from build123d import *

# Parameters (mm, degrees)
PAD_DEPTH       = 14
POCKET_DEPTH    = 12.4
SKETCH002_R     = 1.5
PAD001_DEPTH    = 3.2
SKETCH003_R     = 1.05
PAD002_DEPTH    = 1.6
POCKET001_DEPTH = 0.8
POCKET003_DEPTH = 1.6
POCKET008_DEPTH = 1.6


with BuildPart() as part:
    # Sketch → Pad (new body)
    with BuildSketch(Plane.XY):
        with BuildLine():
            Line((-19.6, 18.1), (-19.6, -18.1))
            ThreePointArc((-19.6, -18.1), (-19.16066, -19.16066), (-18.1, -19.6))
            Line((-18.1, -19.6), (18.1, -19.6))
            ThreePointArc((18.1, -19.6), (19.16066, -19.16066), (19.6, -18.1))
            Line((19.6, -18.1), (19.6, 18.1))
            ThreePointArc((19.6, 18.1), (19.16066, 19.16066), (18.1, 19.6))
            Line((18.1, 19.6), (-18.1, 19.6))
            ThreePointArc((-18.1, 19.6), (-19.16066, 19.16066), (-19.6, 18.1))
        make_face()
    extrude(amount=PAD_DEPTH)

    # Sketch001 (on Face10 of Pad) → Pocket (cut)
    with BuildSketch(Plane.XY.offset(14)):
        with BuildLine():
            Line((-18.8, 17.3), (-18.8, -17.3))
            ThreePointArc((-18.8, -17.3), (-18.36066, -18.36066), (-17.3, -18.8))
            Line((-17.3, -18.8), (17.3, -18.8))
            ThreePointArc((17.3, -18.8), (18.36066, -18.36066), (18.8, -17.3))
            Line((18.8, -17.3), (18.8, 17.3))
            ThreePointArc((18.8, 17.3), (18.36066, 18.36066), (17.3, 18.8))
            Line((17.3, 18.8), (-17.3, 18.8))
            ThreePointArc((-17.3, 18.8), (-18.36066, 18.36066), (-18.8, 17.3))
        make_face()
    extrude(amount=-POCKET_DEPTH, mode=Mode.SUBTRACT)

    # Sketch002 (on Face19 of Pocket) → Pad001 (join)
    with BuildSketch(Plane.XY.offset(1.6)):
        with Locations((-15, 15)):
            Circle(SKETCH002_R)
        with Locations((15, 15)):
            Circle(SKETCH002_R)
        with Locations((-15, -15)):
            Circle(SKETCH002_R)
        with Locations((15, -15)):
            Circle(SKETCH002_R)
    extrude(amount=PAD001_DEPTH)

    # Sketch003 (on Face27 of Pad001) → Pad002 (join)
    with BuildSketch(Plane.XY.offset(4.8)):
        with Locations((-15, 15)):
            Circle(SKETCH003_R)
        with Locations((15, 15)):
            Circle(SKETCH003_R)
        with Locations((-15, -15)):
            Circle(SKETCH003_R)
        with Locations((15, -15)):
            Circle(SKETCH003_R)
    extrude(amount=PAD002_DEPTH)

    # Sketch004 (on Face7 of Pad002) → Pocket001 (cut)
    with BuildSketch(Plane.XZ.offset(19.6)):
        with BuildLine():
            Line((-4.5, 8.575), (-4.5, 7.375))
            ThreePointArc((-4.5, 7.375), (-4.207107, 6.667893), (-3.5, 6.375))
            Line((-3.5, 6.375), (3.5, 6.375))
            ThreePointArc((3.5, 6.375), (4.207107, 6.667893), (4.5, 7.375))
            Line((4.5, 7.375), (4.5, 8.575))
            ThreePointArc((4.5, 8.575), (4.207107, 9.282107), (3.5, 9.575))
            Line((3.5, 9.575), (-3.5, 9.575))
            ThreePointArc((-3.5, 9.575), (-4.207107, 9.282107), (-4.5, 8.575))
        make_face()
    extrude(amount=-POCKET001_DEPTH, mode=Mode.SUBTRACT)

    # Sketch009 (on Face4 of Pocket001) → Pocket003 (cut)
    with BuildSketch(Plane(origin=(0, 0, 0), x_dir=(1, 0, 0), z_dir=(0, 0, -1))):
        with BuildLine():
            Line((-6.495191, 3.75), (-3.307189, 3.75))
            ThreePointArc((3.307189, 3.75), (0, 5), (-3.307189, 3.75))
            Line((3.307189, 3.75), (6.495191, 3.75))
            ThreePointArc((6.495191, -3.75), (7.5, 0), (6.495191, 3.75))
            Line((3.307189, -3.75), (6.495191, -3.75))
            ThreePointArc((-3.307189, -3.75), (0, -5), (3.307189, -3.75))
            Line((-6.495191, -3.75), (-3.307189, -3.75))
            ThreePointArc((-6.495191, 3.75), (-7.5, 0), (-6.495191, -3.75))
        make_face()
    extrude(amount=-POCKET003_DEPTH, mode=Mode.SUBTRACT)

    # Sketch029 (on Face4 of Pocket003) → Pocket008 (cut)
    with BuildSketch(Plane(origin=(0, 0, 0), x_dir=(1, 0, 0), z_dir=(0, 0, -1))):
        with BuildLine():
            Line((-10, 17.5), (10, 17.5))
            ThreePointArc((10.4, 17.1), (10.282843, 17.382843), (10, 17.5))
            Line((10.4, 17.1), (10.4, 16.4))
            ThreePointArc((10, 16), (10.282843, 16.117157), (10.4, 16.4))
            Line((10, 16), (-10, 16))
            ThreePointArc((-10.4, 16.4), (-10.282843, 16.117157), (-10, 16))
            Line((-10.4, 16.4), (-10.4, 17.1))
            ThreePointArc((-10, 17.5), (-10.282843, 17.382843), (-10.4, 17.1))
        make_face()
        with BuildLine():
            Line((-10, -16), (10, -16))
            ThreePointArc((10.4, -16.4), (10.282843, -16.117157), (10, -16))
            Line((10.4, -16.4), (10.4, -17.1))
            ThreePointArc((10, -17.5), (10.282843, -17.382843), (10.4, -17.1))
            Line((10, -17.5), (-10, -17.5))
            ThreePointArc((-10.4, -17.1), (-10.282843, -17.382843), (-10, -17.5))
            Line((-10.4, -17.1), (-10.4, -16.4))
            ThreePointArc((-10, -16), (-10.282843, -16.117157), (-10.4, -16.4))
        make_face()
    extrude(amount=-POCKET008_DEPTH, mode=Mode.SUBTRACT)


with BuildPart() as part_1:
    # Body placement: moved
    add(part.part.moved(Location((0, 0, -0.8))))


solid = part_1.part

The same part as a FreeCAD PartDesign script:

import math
import FreeCAD as App
import Part
import Sketcher
from FreeCAD import Vector
Q = App.Units.Quantity

doc = App.newDocument("Part")
body = doc.addObject("PartDesign::Body", "Body")

sketch1 = body.newObject("Sketcher::SketchObject", "Sketch")
sketch1.AttachmentSupport = (doc.getObject("XY_Plane"), [""])
sketch1.MapMode = "FlatFace"
sketch1.addGeometry([
    Part.LineSegment(Vector(-19.6, 18.1, 0), Vector(-19.6, -18.1, 0)),
    Part.ArcOfCircle(Part.Circle(Vector(-18.1, -18.1, 0), Vector(0, 0, 1), 1.5), math.radians(-180), math.radians(-90)),
    Part.LineSegment(Vector(-18.1, -19.6, 0), Vector(18.1, -19.6, 0)),
    Part.ArcOfCircle(Part.Circle(Vector(18.1, -18.1, 0), Vector(0, 0, 1), 1.5), math.radians(-90), math.radians(0)),
    Part.LineSegment(Vector(19.6, -18.1, 0), Vector(19.6, 18.1, 0)),
    Part.ArcOfCircle(Part.Circle(Vector(18.1, 18.1, 0), Vector(0, 0, 1), 1.5), math.radians(0), math.radians(90)),
    Part.LineSegment(Vector(18.1, 19.6, 0), Vector(-18.1, 19.6, 0)),
    Part.ArcOfCircle(Part.Circle(Vector(-18.1, 18.1, 0), Vector(0, 0, 1), 1.5), math.radians(90), math.radians(180)),
], False)
sketch1.addConstraint([
    Sketcher.Constraint("Tangent", 0, 2, 1, 1),
    Sketcher.Constraint("Tangent", 1, 2, 2, 1),
    Sketcher.Constraint("Tangent", 2, 2, 3, 1),
    Sketcher.Constraint("Tangent", 3, 2, 4, 1),
    Sketcher.Constraint("Tangent", 4, 2, 5, 1),
    Sketcher.Constraint("Tangent", 5, 2, 6, 1),
    Sketcher.Constraint("Tangent", 6, 2, 7, 1),
    Sketcher.Constraint("Tangent", 7, 2, 0, 1),
    Sketcher.Constraint("Vertical", 0),
    Sketcher.Constraint("Horizontal", 2),
    Sketcher.Constraint("Vertical", 4),
    Sketcher.Constraint("Horizontal", 6),
    Sketcher.Constraint("Equal", 1, 3),
    Sketcher.Constraint("Equal", 3, 5),
    Sketcher.Constraint("Equal", 5, 7),
    Sketcher.Constraint("Symmetric", 1, 3, 5, 3, -1, 1),
    Sketcher.Constraint("Equal", 6, 0),
    Sketcher.Constraint("Radius", 1, Q("1.500001 mm")),
    Sketcher.Constraint("DistanceX", 2, 1, 2, 2, Q("36.2 mm")),
])
pad1 = body.newObject("PartDesign::Pad", "Pad")
pad1.Profile = sketch1
pad1.Length = 14

sketch2 = body.newObject("Sketcher::SketchObject", "Sketch001")
sketch2.AttachmentSupport = (doc.getObject("XY_Plane"), [""])
sketch2.MapMode = "FlatFace"
sketch2.AttachmentOffset = App.Placement(Vector(0, 0, 14), App.Rotation())
sketch2.addGeometry([
    Part.LineSegment(Vector(-18.8, 17.3, 0), Vector(-18.8, -17.3, 0)),
    Part.ArcOfCircle(Part.Circle(Vector(-17.3, -17.3, 0), Vector(0, 0, 1), 1.5), math.radians(-180), math.radians(-90)),
    Part.LineSegment(Vector(-17.3, -18.8, 0), Vector(17.3, -18.8, 0)),
    Part.ArcOfCircle(Part.Circle(Vector(17.3, -17.3, 0), Vector(0, 0, 1), 1.5), math.radians(-90), math.radians(0)),
    Part.LineSegment(Vector(18.8, -17.3, 0), Vector(18.8, 17.3, 0)),
    Part.ArcOfCircle(Part.Circle(Vector(17.3, 17.3, 0), Vector(0, 0, 1), 1.5), math.radians(0), math.radians(90)),
    Part.LineSegment(Vector(17.3, 18.8, 0), Vector(-17.3, 18.8, 0)),
    Part.ArcOfCircle(Part.Circle(Vector(-17.3, 17.3, 0), Vector(0, 0, 1), 1.5), math.radians(90), math.radians(180)),
], False)
sketch2.addConstraint([
    Sketcher.Constraint("Tangent", 0, 2, 1, 1),
    Sketcher.Constraint("Tangent", 1, 2, 2, 1),
    Sketcher.Constraint("Tangent", 2, 2, 3, 1),
    Sketcher.Constraint("Tangent", 3, 2, 4, 1),
    Sketcher.Constraint("Tangent", 4, 2, 5, 1),
    Sketcher.Constraint("Tangent", 5, 2, 6, 1),
    Sketcher.Constraint("Tangent", 6, 2, 7, 1),
    Sketcher.Constraint("Tangent", 7, 2, 0, 1),
    Sketcher.Constraint("Vertical", 0),
    Sketcher.Constraint("Horizontal", 2),
    Sketcher.Constraint("Vertical", 4),
    Sketcher.Constraint("Horizontal", 6),
    Sketcher.Constraint("Equal", 1, 3),
    Sketcher.Constraint("Equal", 3, 5),
    Sketcher.Constraint("Equal", 5, 7),
    Sketcher.Constraint("Symmetric", 1, 3, 5, 3, -1, 1),
    Sketcher.Constraint("Equal", 6, 0),
    Sketcher.Constraint("Radius", 1, Q("1.500001 mm")),
    Sketcher.Constraint("DistanceX", 2, 1, 2, 2, Q("34.6 mm")),
])
pocket1 = body.newObject("PartDesign::Pocket", "Pocket")
pocket1.Profile = sketch2
pocket1.Length = 12.4

sketch3 = body.newObject("Sketcher::SketchObject", "Sketch002")
sketch3.AttachmentSupport = (doc.getObject("XY_Plane"), [""])
sketch3.MapMode = "FlatFace"
sketch3.AttachmentOffset = App.Placement(Vector(0, 0, 1.6), App.Rotation())
sketch3.addGeometry([
    Part.Circle(Vector(-15, 15, 0), Vector(0, 0, 1), 1.5),
    Part.Circle(Vector(15, 15, 0), Vector(0, 0, 1), 1.5),
    Part.Circle(Vector(-15, -15, 0), Vector(0, 0, 1), 1.5),
    Part.Circle(Vector(15, -15, 0), Vector(0, 0, 1), 1.5),
], False)
sketch3.addConstraint([
    Sketcher.Constraint("Equal", 0, 1),
    Sketcher.Constraint("Equal", 1, 2),
    Sketcher.Constraint("Equal", 2, 3),
    Sketcher.Constraint("Symmetric", 1, 3, 2, 3, -1, 1),
    Sketcher.Constraint("Symmetric", 0, 3, 3, 3, -1, 1),
    Sketcher.Constraint("Symmetric", 0, 3, 1, 3, -2),
    Sketcher.Constraint("Diameter", 0, Q("3 mm")),
    Sketcher.Constraint("DistanceX", 0, 3, -1, 1, Q("15 mm")),
    Sketcher.Constraint("DistanceY", -1, 1, 0, 3, Q("15 mm")),
])
pad2 = body.newObject("PartDesign::Pad", "Pad001")
pad2.Profile = sketch3
pad2.Length = 3.2

sketch4 = body.newObject("Sketcher::SketchObject", "Sketch003")
sketch4.AttachmentSupport = (doc.getObject("XY_Plane"), [""])
sketch4.MapMode = "FlatFace"
sketch4.AttachmentOffset = App.Placement(Vector(0, 0, 4.8), App.Rotation())
sketch4.addGeometry([
    Part.Circle(Vector(-15, 15, 0), Vector(0, 0, 1), 1.1),
    Part.Circle(Vector(15, 15, 0), Vector(0, 0, 1), 1.1),
    Part.Circle(Vector(-15, -15, 0), Vector(0, 0, 1), 1.1),
    Part.Circle(Vector(15, -15, 0), Vector(0, 0, 1), 1.1),
], False)
sketch4.addConstraint([
    Sketcher.Constraint("Equal", 0, 1),
    Sketcher.Constraint("Equal", 1, 2),
    Sketcher.Constraint("Equal", 2, 3),
    Sketcher.Constraint("Symmetric", 1, 3, 2, 3, -1, 1),
    Sketcher.Constraint("Symmetric", 0, 3, 3, 3, -1, 1),
    Sketcher.Constraint("Symmetric", 0, 3, 1, 3, -2),
    Sketcher.Constraint("Diameter", 0, Q("2.1 mm")),
    Sketcher.Constraint("DistanceX", 0, 3, -1, 1, Q("15 mm")),
    Sketcher.Constraint("DistanceY", -1, 1, 0, 3, Q("15 mm")),
])
pad3 = body.newObject("PartDesign::Pad", "Pad002")
pad3.Profile = sketch4
pad3.Length = 1.6

sketch5 = body.newObject("Sketcher::SketchObject", "Sketch004")
sketch5.AttachmentSupport = (doc.getObject("XZ_Plane"), [""])
sketch5.MapMode = "FlatFace"
sketch5.AttachmentOffset = App.Placement(Vector(0, 0, 19.6), App.Rotation())
sketch5.addGeometry([
    Part.LineSegment(Vector(-4.5, 8.6, 0), Vector(-4.5, 7.4, 0)),
    Part.ArcOfCircle(Part.Circle(Vector(-3.5, 7.4, 0), Vector(0, 0, 1), 1), math.radians(180), math.radians(270)),
    Part.LineSegment(Vector(-3.5, 6.4, 0), Vector(3.5, 6.4, 0)),
    Part.ArcOfCircle(Part.Circle(Vector(3.5, 7.4, 0), Vector(0, 0, 1), 1), math.radians(-90), math.radians(0)),
    Part.LineSegment(Vector(4.5, 7.4, 0), Vector(4.5, 8.6, 0)),
    Part.ArcOfCircle(Part.Circle(Vector(3.5, 8.6, 0), Vector(0, 0, 1), 1), math.radians(0), math.radians(90)),
    Part.LineSegment(Vector(3.5, 9.6, 0), Vector(-3.5, 9.6, 0)),
    Part.ArcOfCircle(Part.Circle(Vector(-3.5, 8.6, 0), Vector(0, 0, 1), 1), math.radians(90), math.radians(180)),
], False)
sketch5.addConstraint([
    Sketcher.Constraint("Tangent", 0, 2, 1, 1),
    Sketcher.Constraint("Tangent", 1, 2, 2, 1),
    Sketcher.Constraint("Tangent", 2, 2, 3, 1),
    Sketcher.Constraint("Tangent", 3, 2, 4, 1),
    Sketcher.Constraint("Tangent", 4, 2, 5, 1),
    Sketcher.Constraint("Tangent", 5, 2, 6, 1),
    Sketcher.Constraint("Tangent", 6, 2, 7, 1),
    Sketcher.Constraint("Tangent", 7, 2, 0, 1),
    Sketcher.Constraint("Vertical", 0),
    Sketcher.Constraint("Horizontal", 2),
    Sketcher.Constraint("Vertical", 4),
    Sketcher.Constraint("Horizontal", 6),
    Sketcher.Constraint("Equal", 1, 3),
    Sketcher.Constraint("Equal", 3, 5),
    Sketcher.Constraint("Equal", 5, 7),
    Sketcher.Constraint("Radius", 1, Q("0.999999 mm")),
    Sketcher.Constraint("DistanceX", 2, 1, 2, 2, Q("7 mm")),
    Sketcher.Constraint("DistanceY", 0, 2, 0, 1, Q("1.2 mm")),
    Sketcher.Constraint("DistanceX", 1, 3, -1, 1, Q("3.500001 mm")),
    Sketcher.Constraint("DistanceY", -1, 1, 1, 3, Q("7.374999 mm")),
])
pocket2 = body.newObject("PartDesign::Pocket", "Pocket001")
pocket2.Profile = sketch5
pocket2.Length = 0.8

sketch6 = body.newObject("Sketcher::SketchObject", "Sketch005")
sketch6.AttachmentSupport = (doc.getObject("XY_Plane"), [""])
sketch6.MapMode = "FlatFace"
sketch6.addGeometry([
    Part.LineSegment(Vector(-3.3, -3.8, 0), Vector(-6.5, -3.8, 0)),
    Part.ArcOfCircle(Part.Circle(Vector(0, 0, 0), Vector(0, 0, 1), 7.5), math.radians(150), math.radians(210)),
    Part.LineSegment(Vector(-6.5, 3.8, 0), Vector(-3.3, 3.8, 0)),
    Part.ArcOfCircle(Part.Circle(Vector(0, 0, 0), Vector(0, 0, 1), 5), math.radians(49), math.radians(131)),
    Part.LineSegment(Vector(3.3, 3.8, 0), Vector(6.5, 3.8, 0)),
    Part.ArcOfCircle(Part.Circle(Vector(0, 0, 0), Vector(0, 0, 1), 7.5), math.radians(-30), math.radians(30)),
    Part.LineSegment(Vector(6.5, -3.8, 0), Vector(3.3, -3.8, 0)),
    Part.ArcOfCircle(Part.Circle(Vector(0, 0, 0), Vector(0, 0, 1), 5), math.radians(-131), math.radians(-49)),
], False)
sketch6.addConstraint([
    Sketcher.Constraint("Coincident", 0, 2, 1, 2),
    Sketcher.Constraint("Coincident", 1, 1, 2, 1),
    Sketcher.Constraint("Coincident", 2, 2, 3, 2),
    Sketcher.Constraint("Coincident", 3, 1, 4, 1),
    Sketcher.Constraint("Coincident", 4, 2, 5, 2),
    Sketcher.Constraint("Coincident", 5, 1, 6, 1),
    Sketcher.Constraint("Coincident", 6, 2, 7, 2),
    Sketcher.Constraint("Coincident", 7, 1, 0, 1),
    Sketcher.Constraint("Horizontal", 0),
    Sketcher.Constraint("Horizontal", 2),
    Sketcher.Constraint("Horizontal", 4),
    Sketcher.Constraint("Horizontal", 6),
    Sketcher.Constraint("Coincident", 1, 3, -1, 1),
    Sketcher.Constraint("Coincident", 3, 3, -1, 1),
    Sketcher.Constraint("Coincident", 5, 3, -1, 1),
    Sketcher.Constraint("Coincident", 7, 3, -1, 1),
    Sketcher.Constraint("Equal", 1, 5),
    Sketcher.Constraint("Equal", 3, 7),
    Sketcher.Constraint("Horizontal", 2, 2, 3, 1),
    Sketcher.Constraint("Horizontal", 0, 2, 5, 1),
    Sketcher.Constraint("Vertical", 0, 2, 1, 1),
    Sketcher.Constraint("Radius", 3, Q("5 mm")),
    Sketcher.Constraint("DistanceY", 0, 2, 1, 1, Q("7.5 mm")),
    Sketcher.Constraint("DistanceX", 0, 2, 0, 1, Q("3.188002 mm")),
])
pocket3 = body.newObject("PartDesign::Pocket", "Pocket002")
pocket3.Profile = sketch6
pocket3.Length = 1.6
pocket3.Reversed = True

sketch7 = body.newObject("Sketcher::SketchObject", "Sketch006")
sketch7.AttachmentSupport = (doc.getObject("XY_Plane"), [""])
sketch7.MapMode = "FlatFace"
sketch7.addGeometry([
    Part.LineSegment(Vector(10, -17.5, 0), Vector(-10, -17.5, 0)),
    Part.ArcOfCircle(Part.Circle(Vector(-10, -17.1, 0), Vector(0, 0, 1), 0.4), math.radians(180), math.radians(270)),
    Part.LineSegment(Vector(-10.4, -17.1, 0), Vector(-10.4, -16.4, 0)),
    Part.ArcOfCircle(Part.Circle(Vector(-10, -16.4, 0), Vector(0, 0, 1), 0.4), math.radians(90), math.radians(180)),
    Part.LineSegment(Vector(-10, -16, 0), Vector(10, -16, 0)),
    Part.ArcOfCircle(Part.Circle(Vector(10, -16.4, 0), Vector(0, 0, 1), 0.4), math.radians(0), math.radians(90)),
    Part.LineSegment(Vector(10.4, -16.4, 0), Vector(10.4, -17.1, 0)),
    Part.ArcOfCircle(Part.Circle(Vector(10, -17.1, 0), Vector(0, 0, 1), 0.4), math.radians(-90), math.radians(0)),
    Part.LineSegment(Vector(10, 16, 0), Vector(-10, 16, 0)),
    Part.ArcOfCircle(Part.Circle(Vector(-10, 16.4, 0), Vector(0, 0, 1), 0.4), math.radians(180), math.radians(270)),
    Part.LineSegment(Vector(-10.4, 16.4, 0), Vector(-10.4, 17.1, 0)),
    Part.ArcOfCircle(Part.Circle(Vector(-10, 17.1, 0), Vector(0, 0, 1), 0.4), math.radians(90), math.radians(180)),
    Part.LineSegment(Vector(-10, 17.5, 0), Vector(10, 17.5, 0)),
    Part.ArcOfCircle(Part.Circle(Vector(10, 17.1, 0), Vector(0, 0, 1), 0.4), math.radians(0), math.radians(90)),
    Part.LineSegment(Vector(10.4, 17.1, 0), Vector(10.4, 16.4, 0)),
    Part.ArcOfCircle(Part.Circle(Vector(10, 16.4, 0), Vector(0, 0, 1), 0.4), math.radians(-90), math.radians(0)),
], False)
sketch7.addConstraint([
    Sketcher.Constraint("Coincident", 0, 2, 1, 2),
    Sketcher.Constraint("Coincident", 1, 1, 2, 1),
    Sketcher.Constraint("Coincident", 2, 2, 3, 2),
    Sketcher.Constraint("Coincident", 3, 1, 4, 1),
    Sketcher.Constraint("Coincident", 4, 2, 5, 2),
    Sketcher.Constraint("Coincident", 5, 1, 6, 1),
    Sketcher.Constraint("Coincident", 6, 2, 7, 2),
    Sketcher.Constraint("Coincident", 7, 1, 0, 1),
    Sketcher.Constraint("Coincident", 8, 2, 9, 2),
    Sketcher.Constraint("Coincident", 9, 1, 10, 1),
    Sketcher.Constraint("Coincident", 10, 2, 11, 2),
    Sketcher.Constraint("Coincident", 11, 1, 12, 1),
    Sketcher.Constraint("Coincident", 12, 2, 13, 2),
    Sketcher.Constraint("Coincident", 13, 1, 14, 1),
    Sketcher.Constraint("Coincident", 14, 2, 15, 2),
    Sketcher.Constraint("Coincident", 15, 1, 8, 1),
    Sketcher.Constraint("Horizontal", 0),
    Sketcher.Constraint("Vertical", 2),
    Sketcher.Constraint("Horizontal", 4),
    Sketcher.Constraint("Vertical", 6),
    Sketcher.Constraint("Horizontal", 8),
    Sketcher.Constraint("Vertical", 10),
    Sketcher.Constraint("Horizontal", 12),
    Sketcher.Constraint("Vertical", 14),
    Sketcher.Constraint("Equal", 1, 3),
    Sketcher.Constraint("Equal", 3, 5),
    Sketcher.Constraint("Equal", 5, 7),
    Sketcher.Constraint("Equal", 7, 9),
    Sketcher.Constraint("Equal", 9, 11),
    Sketcher.Constraint("Equal", 11, 13),
    Sketcher.Constraint("Equal", 13, 15),
    Sketcher.Constraint("Symmetric", 5, 3, 9, 3, -1, 1),
    Sketcher.Constraint("Symmetric", 1, 3, 13, 3, -1, 1),
    Sketcher.Constraint("Symmetric", 2, 2, 5, 1, -2),
    Sketcher.Constraint("Horizontal", 7, 3, 1, 1),
    Sketcher.Constraint("Horizontal", 5, 3, 2, 2),
    Sketcher.Constraint("Horizontal", 1, 1, 6, 2),
    Sketcher.Constraint("Horizontal", 15, 3, 9, 1),
    Sketcher.Constraint("Horizontal", 13, 3, 10, 2),
    Sketcher.Constraint("Horizontal", 10, 2, 13, 1),
    Sketcher.Constraint("Horizontal", 9, 1, 14, 2),
    Sketcher.Constraint("Vertical", 11, 3, 0, 2),
    Sketcher.Constraint("Vertical", 0, 2, 3, 1),
    Sketcher.Constraint("Vertical", 15, 3, 4, 2),
    Sketcher.Constraint("Vertical", 4, 2, 7, 1),
    Sketcher.Constraint("Vertical", 3, 1, 8, 2),
    Sketcher.Constraint("Vertical", 8, 2, 11, 1),
    Sketcher.Constraint("Vertical", 7, 1, 12, 2),
    Sketcher.Constraint("Vertical", 12, 2, 15, 1),
    Sketcher.Constraint("Radius", 1, Q("0.399999 mm")),
    Sketcher.Constraint("DistanceX", 0, 2, 0, 1, Q("20 mm")),
    Sketcher.Constraint("DistanceY", 2, 1, 2, 2, Q("0.7 mm")),
    Sketcher.Constraint("DistanceY", 3, 1, -1, 1, Q("16 mm")),
])
pocket4 = body.newObject("PartDesign::Pocket", "Pocket003")
pocket4.Profile = sketch7
pocket4.Length = 1.6
pocket4.Reversed = True
body2 = doc.addObject("PartDesign::Body", "Body001")
doc.recompute()

body.Placement = App.Placement(Vector(0, 0, -0.8), App.Rotation(Vector(0, 0, 1), 0))
boolean = body2.newObject("PartDesign::Boolean", "Boolean")
boolean.Type = "Fuse"
boolean.addObjects([body])

doc.recompute()
